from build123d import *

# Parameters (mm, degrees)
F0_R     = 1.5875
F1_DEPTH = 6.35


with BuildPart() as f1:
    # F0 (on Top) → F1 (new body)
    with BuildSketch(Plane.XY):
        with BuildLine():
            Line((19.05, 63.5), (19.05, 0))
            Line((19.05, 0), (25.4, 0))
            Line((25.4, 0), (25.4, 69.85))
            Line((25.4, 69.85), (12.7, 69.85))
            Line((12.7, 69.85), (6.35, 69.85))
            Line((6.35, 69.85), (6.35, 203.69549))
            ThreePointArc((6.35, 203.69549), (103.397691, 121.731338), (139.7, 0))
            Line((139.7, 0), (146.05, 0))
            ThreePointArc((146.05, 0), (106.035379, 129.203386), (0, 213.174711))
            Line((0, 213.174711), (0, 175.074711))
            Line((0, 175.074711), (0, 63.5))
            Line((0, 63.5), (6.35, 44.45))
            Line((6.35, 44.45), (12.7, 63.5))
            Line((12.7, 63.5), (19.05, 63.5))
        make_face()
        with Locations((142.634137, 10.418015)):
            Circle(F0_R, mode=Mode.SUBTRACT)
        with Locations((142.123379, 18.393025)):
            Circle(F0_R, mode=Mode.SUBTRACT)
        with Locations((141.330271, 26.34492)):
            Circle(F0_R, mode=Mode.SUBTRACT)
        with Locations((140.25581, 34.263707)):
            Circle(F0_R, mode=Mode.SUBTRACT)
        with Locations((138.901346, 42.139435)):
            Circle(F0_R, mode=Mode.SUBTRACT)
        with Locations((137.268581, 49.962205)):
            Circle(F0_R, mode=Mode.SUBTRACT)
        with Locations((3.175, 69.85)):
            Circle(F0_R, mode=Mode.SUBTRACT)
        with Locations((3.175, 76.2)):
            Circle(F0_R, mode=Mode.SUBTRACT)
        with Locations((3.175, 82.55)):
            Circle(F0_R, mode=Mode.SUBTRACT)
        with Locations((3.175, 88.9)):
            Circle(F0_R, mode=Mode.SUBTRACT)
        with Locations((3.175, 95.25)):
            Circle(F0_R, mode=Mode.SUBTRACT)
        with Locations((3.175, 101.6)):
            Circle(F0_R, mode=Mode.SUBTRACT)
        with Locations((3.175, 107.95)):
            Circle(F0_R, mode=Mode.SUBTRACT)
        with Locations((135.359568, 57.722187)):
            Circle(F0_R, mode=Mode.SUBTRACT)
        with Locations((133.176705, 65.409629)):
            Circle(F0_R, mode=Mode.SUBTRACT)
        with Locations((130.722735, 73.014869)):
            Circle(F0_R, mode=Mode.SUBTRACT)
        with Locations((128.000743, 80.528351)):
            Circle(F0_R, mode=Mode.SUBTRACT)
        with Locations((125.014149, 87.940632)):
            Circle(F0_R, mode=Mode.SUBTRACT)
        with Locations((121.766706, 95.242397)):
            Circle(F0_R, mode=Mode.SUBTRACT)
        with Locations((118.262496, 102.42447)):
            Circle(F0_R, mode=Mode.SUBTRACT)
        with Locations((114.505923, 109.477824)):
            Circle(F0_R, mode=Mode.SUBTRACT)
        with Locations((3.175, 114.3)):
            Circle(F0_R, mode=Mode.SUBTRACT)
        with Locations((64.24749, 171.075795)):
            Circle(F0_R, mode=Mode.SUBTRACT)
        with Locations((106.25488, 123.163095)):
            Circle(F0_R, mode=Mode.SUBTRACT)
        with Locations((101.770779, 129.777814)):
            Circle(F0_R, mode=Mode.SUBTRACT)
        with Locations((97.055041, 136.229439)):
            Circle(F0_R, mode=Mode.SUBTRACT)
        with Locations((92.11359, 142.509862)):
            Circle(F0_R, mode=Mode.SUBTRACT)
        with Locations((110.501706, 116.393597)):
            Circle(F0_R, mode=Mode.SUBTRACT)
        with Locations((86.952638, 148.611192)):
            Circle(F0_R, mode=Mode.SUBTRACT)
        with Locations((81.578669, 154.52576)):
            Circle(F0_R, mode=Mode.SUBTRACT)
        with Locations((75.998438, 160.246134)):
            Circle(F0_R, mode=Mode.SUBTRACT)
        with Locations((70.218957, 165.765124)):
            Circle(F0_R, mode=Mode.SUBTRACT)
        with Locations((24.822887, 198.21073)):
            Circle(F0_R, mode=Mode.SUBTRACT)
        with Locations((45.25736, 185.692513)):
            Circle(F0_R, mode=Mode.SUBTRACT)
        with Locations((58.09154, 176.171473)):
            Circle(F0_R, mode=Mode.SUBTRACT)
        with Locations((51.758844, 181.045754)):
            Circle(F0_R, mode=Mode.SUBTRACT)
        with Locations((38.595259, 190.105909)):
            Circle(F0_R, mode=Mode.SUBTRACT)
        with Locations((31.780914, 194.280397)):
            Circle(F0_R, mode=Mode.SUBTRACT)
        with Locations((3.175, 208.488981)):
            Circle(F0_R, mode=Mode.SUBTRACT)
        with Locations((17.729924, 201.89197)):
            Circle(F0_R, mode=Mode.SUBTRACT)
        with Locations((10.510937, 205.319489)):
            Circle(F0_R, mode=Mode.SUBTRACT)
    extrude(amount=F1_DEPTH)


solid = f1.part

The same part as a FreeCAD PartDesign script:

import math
import FreeCAD as App
import Part
import Sketcher

V = App.Vector
Q = App.Units.Quantity

doc = App.newDocument("Part")
params = doc.addObject("Spreadsheet::Sheet", "Params")
for row, (alias, value) in enumerate([
    ("sketch1_radius", "8.9999999 in"),
    ("sketch1_radius2", "8.7500001 in"),
    ("sketch1_diameter", "0.125 in"),
    ("sketch1_height", "2.5 in"),
    ("sketch1_height2", "2.75 in"),
    ("pad1_length", "0.25 in"),
], start=1):
    params.set(f"A{row}", alias)
    params.set(f"B{row}", "=" + value)
    params.setAlias(f"B{row}", alias)

body = doc.addObject("PartDesign::Body", "Body")

# Sketch on XY plane
sketch1 = body.newObject("Sketcher::SketchObject", "Sketch")
sketch1.AttachmentSupport = (doc.getObject("XY_Plane"), [""])
sketch1.MapMode = "FlatFace"
sketch1.addGeometry([
    Part.LineSegment(V(19.05, 63.5, 0), V(19.05, 0, 0)),  # 0
    Part.LineSegment(V(19.05, 0, 0), V(25.4, 0, 0)),  # 1
    Part.LineSegment(V(25.4, 0, 0), V(25.4, 69.85, 0)),  # 2
    Part.LineSegment(V(25.4, 69.85, 0), V(6.35, 69.85, 0)),  # 3
    Part.LineSegment(V(6.35, 69.85, 0), V(6.35, 203.69549, 0)),  # 4
    Part.ArcOfCircle(Part.Circle(V(-82.550002, -0.000001, 0), V(0, 0, 1), 222.250002), math.radians(0), math.radians(66.421821)),  # 5
    Part.LineSegment(V(139.7, 0, 0), V(146.05, 0, 0)),  # 6
    Part.ArcOfCircle(Part.Circle(V(-82.549998, 0.000001, 0), V(0, 0, 1), 228.599998), math.radians(0), math.radians(68.831551)),  # 7
    Part.LineSegment(V(0, 213.174711, 0), V(0, 63.5, 0)),  # 8
    Part.LineSegment(V(0, 63.5, 0), V(6.35, 44.45, 0)),  # 9
    Part.LineSegment(V(6.35, 44.45, 0), V(12.7, 63.5, 0)),  # 10
    Part.LineSegment(V(12.7, 63.5, 0), V(19.05, 63.5, 0)),  # 11
    Part.Circle(V(3.175, 69.85, 0), V(0, 0, 1), 1.5875),  # 12
    Part.Circle(V(3.175, 76.2, 0), V(0, 0, 1), 1.5875),  # 13
    Part.Circle(V(3.175, 82.55, 0), V(0, 0, 1), 1.5875),  # 14
    Part.Circle(V(3.175, 88.9, 0), V(0, 0, 1), 1.5875),  # 15
    Part.Circle(V(3.175, 95.25, 0), V(0, 0, 1), 1.5875),  # 16
    Part.Circle(V(3.175, 101.6, 0), V(0, 0, 1), 1.5875),  # 17
    Part.Circle(V(3.175, 107.95, 0), V(0, 0, 1), 1.5875),  # 18
    Part.Circle(V(142.634137, 10.418015, 0), V(0, 0, 1), 1.5875),  # 19
    Part.Circle(V(142.123379, 18.393025, 0), V(0, 0, 1), 1.5875),  # 20
    Part.Circle(V(141.330271, 26.34492, 0), V(0, 0, 1), 1.5875),  # 21
    Part.Circle(V(140.25581, 34.263707, 0), V(0, 0, 1), 1.5875),  # 22
    Part.Circle(V(138.901346, 42.139435, 0), V(0, 0, 1), 1.5875),  # 23
    Part.Circle(V(137.268581, 49.962205, 0), V(0, 0, 1), 1.5875),  # 24
    Part.Circle(V(135.359568, 57.722187, 0), V(0, 0, 1), 1.5875),  # 25
    Part.Circle(V(133.176705, 65.409629, 0), V(0, 0, 1), 1.5875),  # 26
    Part.Circle(V(130.722735, 73.014869, 0), V(0, 0, 1), 1.5875),  # 27
    Part.Circle(V(128.000743, 80.528351, 0), V(0, 0, 1), 1.5875),  # 28
    Part.Circle(V(125.014149, 87.940632, 0), V(0, 0, 1), 1.5875),  # 29
    Part.Circle(V(121.766706, 95.242397, 0), V(0, 0, 1), 1.5875),  # 30
    Part.Circle(V(118.262496, 102.42447, 0), V(0, 0, 1), 1.5875),  # 31
    Part.Circle(V(3.175, 114.3, 0), V(0, 0, 1), 1.5875),  # 32
    Part.Circle(V(3.175, 208.488981, 0), V(0, 0, 1), 1.5875),  # 33
    Part.Circle(V(17.729924, 201.89197, 0), V(0, 0, 1), 1.5875),  # 34
    Part.Circle(V(10.510937, 205.319489, 0), V(0, 0, 1), 1.5875),  # 35
    Part.Circle(V(31.780914, 194.280397, 0), V(0, 0, 1), 1.5875),  # 36
    Part.Circle(V(24.822887, 198.21073, 0), V(0, 0, 1), 1.5875),  # 37
    Part.Circle(V(51.758844, 181.045754, 0), V(0, 0, 1), 1.5875),  # 38
    Part.Circle(V(70.218957, 165.765124, 0), V(0, 0, 1), 1.5875),  # 39
    Part.Circle(V(64.24749, 171.075795, 0), V(0, 0, 1), 1.5875),  # 40
    Part.Circle(V(58.09154, 176.171473, 0), V(0, 0, 1), 1.5875),  # 41
    Part.Circle(V(38.595259, 190.105909, 0), V(0, 0, 1), 1.5875),  # 42
    Part.Circle(V(45.25736, 185.692513, 0), V(0, 0, 1), 1.5875),  # 43
    Part.Circle(V(106.25488, 123.163095, 0), V(0, 0, 1), 1.5875),  # 44
    Part.Circle(V(101.770779, 129.777814, 0), V(0, 0, 1), 1.5875),  # 45
    Part.Circle(V(81.578669, 154.52576, 0), V(0, 0, 1), 1.5875),  # 46
    Part.Circle(V(86.952638, 148.611192, 0), V(0, 0, 1), 1.5875),  # 47
    Part.Circle(V(97.055041, 136.229439, 0), V(0, 0, 1), 1.5875),  # 48
    Part.Circle(V(92.11359, 142.509862, 0), V(0, 0, 1), 1.5875),  # 49
    Part.Circle(V(114.505923, 109.477824, 0), V(0, 0, 1), 1.5875),  # 50
    Part.Circle(V(110.501706, 116.393597, 0), V(0, 0, 1), 1.5875),  # 51
    Part.Circle(V(75.998438, 160.246134, 0), V(0, 0, 1), 1.5875),  # 52
], False)
sketch1.addConstraint([
    Sketcher.Constraint("Coincident", 0, 2, 1, 1),
    Sketcher.Constraint("Coincident", 1, 2, 2, 1),
    Sketcher.Constraint("Coincident", 2, 2, 3, 1),
    Sketcher.Constraint("Coincident", 3, 2, 4, 1),
    Sketcher.Constraint("Coincident", 4, 2, 5, 2),
    Sketcher.Constraint("Coincident", 5, 1, 6, 1),
    Sketcher.Constraint("Coincident", 6, 2, 7, 1),
    Sketcher.Constraint("Coincident", 7, 2, 8, 1),
    Sketcher.Constraint("Coincident", 8, 2, 9, 1),
    Sketcher.Constraint("Coincident", 9, 2, 10, 1),
    Sketcher.Constraint("Coincident", 10, 2, 11, 1),
    Sketcher.Constraint("Coincident", 11, 2, 0, 1),
    Sketcher.Constraint("Vertical", 0),
    Sketcher.Constraint("Horizontal", 1),
    Sketcher.Constraint("Vertical", 2),
    Sketcher.Constraint("Horizontal", 3),
    Sketcher.Constraint("Vertical", 4),
    Sketcher.Constraint("Horizontal", 6),
    Sketcher.Constraint("Vertical", 8),
    Sketcher.Constraint("Horizontal", 11),
    Sketcher.Constraint("Coincident", 7, 3, 5, 3),
    Sketcher.Constraint("Equal", 12, 13),
    Sketcher.Constraint("Equal", 13, 14),
    Sketcher.Constraint("Equal", 14, 15),
    Sketcher.Constraint("Equal", 15, 16),
    Sketcher.Constraint("Equal", 16, 17),
    Sketcher.Constraint("Equal", 17, 18),
    Sketcher.Constraint("Equal", 18, 19),
    Sketcher.Constraint("Equal", 19, 20),
    Sketcher.Constraint("Equal", 20, 21),
    Sketcher.Constraint("Equal", 21, 22),
    Sketcher.Constraint("Equal", 22, 23),
    Sketcher.Constraint("Equal", 23, 24),
    Sketcher.Constraint("Equal", 24, 25),
    Sketcher.Constraint("Equal", 25, 26),
    Sketcher.Constraint("Equal", 26, 27),
    Sketcher.Constraint("Equal", 27, 28),
    Sketcher.Constraint("Equal", 28, 29),
    Sketcher.Constraint("Equal", 29, 30),
    Sketcher.Constraint("Equal", 30, 31),
    Sketcher.Constraint("Equal", 31, 32),
    Sketcher.Constraint("Equal", 32, 33),
    Sketcher.Constraint("Equal", 33, 34),
    Sketcher.Constraint("Equal", 34, 35),
    Sketcher.Constraint("Equal", 35, 36),
    Sketcher.Constraint("Equal", 36, 37),
    Sketcher.Constraint("Equal", 37, 38),
    Sketcher.Constraint("Equal", 38, 39),
    Sketcher.Constraint("Equal", 39, 40),
    Sketcher.Constraint("Equal", 40, 41),
    Sketcher.Constraint("Equal", 41, 42),
    Sketcher.Constraint("Equal", 42, 43),
    Sketcher.Constraint("Equal", 43, 44),
    Sketcher.Constraint("Equal", 44, 45),
    Sketcher.Constraint("Equal", 45, 46),
    Sketcher.Constraint("Equal", 46, 47),
    Sketcher.Constraint("Equal", 47, 48),
    Sketcher.Constraint("Equal", 48, 49),
    Sketcher.Constraint("Equal", 49, 50),
    Sketcher.Constraint("Equal", 50, 51),
    Sketcher.Constraint("Equal", 51, 52),
    Sketcher.Constraint("PointOnObject", 5, 3, -1),
    Sketcher.Constraint("PointOnObject", 0, 2, -1),
    Sketcher.Constraint("PointOnObject", 5, 1, -1),
    Sketcher.Constraint("PointOnObject", 7, 2, -2),
    Sketcher.Constraint("Horizontal", 12, 3, 2, 2),
    Sketcher.Constraint("Horizontal", 8, 2, 10, 2),
    Sketcher.Constraint("Vertical", 12, 3, 13, 3),
    Sketcher.Constraint("Vertical", 13, 3, 14, 3),
    Sketcher.Constraint("Vertical", 14, 3, 15, 3),
    Sketcher.Constraint("Vertical", 15, 3, 16, 3),
    Sketcher.Constraint("Vertical", 16, 3, 17, 3),
    Sketcher.Constraint("Vertical", 17, 3, 18, 3),
    Sketcher.Constraint("Vertical", 18, 3, 32, 3),
    Sketcher.Constraint("Vertical", 32, 3, 33, 3),
    Sketcher.Constraint("Vertical", 4, 2, 9, 2),
    Sketcher.Constraint("Equal", 1, 6),
    Sketcher.Constraint("Equal", 6, 11),
    Sketcher.Constraint("Equal", 9, 10),
    Sketcher.Constraint("Radius", 7, Q("8.9999999 in")),
    Sketcher.Constraint("Radius", 5, Q("8.7500001 in")),
    Sketcher.Constraint("Diameter", 12, Q("0.125 in")),
    Sketcher.Constraint("DistanceY", 0, 2, 0, 1, Q("2.5 in")),
    Sketcher.Constraint("DistanceY", -1, 1, 13, 3, Q("3 in")),
    Sketcher.Constraint("DistanceY", -1, 1, 17, 3, Q("4 in")),
    Sketcher.Constraint("DistanceX", -1, 1, 1, 2, Q("1 in")),
    Sketcher.Constraint("DistanceY", 12, 3, 16, 3, Q("1 in")),
    Sketcher.Constraint("DistanceY", 14, 3, 18, 3, Q("1 in")),
    Sketcher.Constraint("DistanceY", 15, 3, 32, 3, Q("1 in")),
    Sketcher.Constraint("DistanceY", 8, 2, 15, 3, Q("1 in")),
    Sketcher.Constraint("DistanceY", 9, 2, 3, 2, Q("1 in")),
    Sketcher.Constraint("DistanceY", 2, 1, 2, 2, Q("2.75 in")),
    Sketcher.Constraint("DistanceX", -1, 1, 5, 1, Q("5.5 in")),
    Sketcher.Constraint("DistanceY", 12, 3, 14, 3, Q("0.5 in")),
    Sketcher.Constraint("DistanceX", -1, 1, 12, 3, Q("0.125 in")),
    Sketcher.Constraint("DistanceX", 29, 3, 25, 3, Q("0.4073 in")),
    Sketcher.Constraint("DistanceY", 41, 3, 42, 3, Q("0.5485998 in")),
    Sketcher.Constraint("DistanceY", 22, 3, 24, 3, Q("15.698498 mm")),
    Sketcher.Constraint("DistanceX", 30, 3, 26, 3, Q("11.409999 mm")),
    Sketcher.Constraint("DistanceY", 27, 3, 31, 3, Q("29.409601 mm")),
    Sketcher.Constraint("DistanceY", 40, 3, 36, 3, Q("23.204602 mm")),
    Sketcher.Constraint("DistanceX", 42, 3, 43, 3, Q("6.662101 mm")),
    Sketcher.Constraint("DistanceY", 30, 3, 44, 3, Q("27.920698 mm")),
    Sketcher.Constraint("DistanceX", 45, 3, 44, 3, Q("4.484101 mm")),
    Sketcher.Constraint("DistanceX", 52, 3, 47, 3, Q("10.9542 mm")),
    Sketcher.Constraint("DistanceY", 4, 2, 35, 3, Q("1.623999 mm")),
    Sketcher.Constraint("DistanceX", -1, 1, 20, 3, Q("142.123379 mm")),
    Sketcher.Constraint("DistanceX", -1, 1, 21, 3, Q("141.330271 mm")),
    Sketcher.Constraint("DistanceY", -1, 1, 21, 3, Q("26.34492 mm")),
    Sketcher.Constraint("DistanceX", -1, 1, 22, 3, Q("140.25581 mm")),
    Sketcher.Constraint("DistanceX", -1, 1, 24, 3, Q("137.268581 mm")),
    Sketcher.Constraint("DistanceX", -1, 1, 25, 3, Q("135.359568 mm")),
    Sketcher.Constraint("DistanceY", -1, 1, 26, 3, Q("65.409629 mm")),
    Sketcher.Constraint("DistanceY", -1, 1, 27, 3, Q("73.014869 mm")),
    Sketcher.Constraint("DistanceY", -1, 1, 28, 3, Q("80.528351 mm")),
    Sketcher.Constraint("DistanceY", -1, 1, 29, 3, Q("87.940632 mm")),
    Sketcher.Constraint("DistanceY", -1, 1, 33, 3, Q("208.488981 mm")),
    Sketcher.Constraint("DistanceY", -1, 1, 34, 3, Q("201.89197 mm")),
    Sketcher.Constraint("DistanceY", -1, 1, 37, 3, Q("198.21073 mm")),
    Sketcher.Constraint("DistanceX", -1, 1, 40, 3, Q("64.24749 mm")),
    Sketcher.Constraint("DistanceX", -1, 1, 41, 3, Q("58.09154 mm")),
    Sketcher.Constraint("DistanceX", -1, 1, 42, 3, Q("38.595259 mm")),
    Sketcher.Constraint("DistanceY", -1, 1, 42, 3, Q("190.105909 mm")),
    Sketcher.Constraint("DistanceX", -1, 1, 44, 3, Q("106.25488 mm")),
    Sketcher.Constraint("DistanceX", -1, 1, 46, 3, Q("81.578669 mm")),
    Sketcher.Constraint("DistanceY", -1, 1, 46, 3, Q("154.52576 mm")),
    Sketcher.Constraint("DistanceY", -1, 1, 47, 3, Q("148.611192 mm")),
    Sketcher.Constraint("DistanceX", -1, 1, 48, 3, Q("97.055041 mm")),
    Sketcher.Constraint("DistanceY", -1, 1, 48, 3, Q("136.229439 mm")),
    Sketcher.Constraint("DistanceX", -1, 1, 49, 3, Q("92.11359 mm")),
    Sketcher.Constraint("DistanceY", -1, 1, 49, 3, Q("142.509862 mm")),
    Sketcher.Constraint("DistanceX", 20, 3, 19, 3, Q("0.510758 mm")),
    Sketcher.Constraint("DistanceY", 19, 3, 20, 3, Q("7.97501 mm")),
    Sketcher.Constraint("DistanceY", 20, 3, 22, 3, Q("15.870682 mm")),
    Sketcher.Constraint("DistanceY", 22, 3, 23, 3, Q("7.875728 mm")),
    Sketcher.Constraint("DistanceX", 23, 3, 19, 3, Q("3.732791 mm")),
    Sketcher.Constraint("DistanceY", 23, 3, 25, 3, Q("15.582752 mm")),
    Sketcher.Constraint("DistanceY", 25, 3, 26, 3, Q("7.687442 mm")),
    Sketcher.Constraint("DistanceX", 26, 3, 23, 3, Q("5.724641 mm")),
    Sketcher.Constraint("DistanceX", 27, 3, 26, 3, Q("2.45397 mm")),
    Sketcher.Constraint("DistanceX", 28, 3, 26, 3, Q("5.175962 mm")),
    Sketcher.Constraint("DistanceY", 26, 3, 30, 3, Q("29.832768 mm")),
    Sketcher.Constraint("DistanceX", 31, 3, 30, 3, Q("3.50421 mm")),
    Sketcher.Constraint("DistanceX", 34, 3, 36, 3, Q("14.05099 mm")),
    Sketcher.Constraint("DistanceX", 35, 3, 37, 3, Q("14.31195 mm")),
    Sketcher.Constraint("DistanceX", 36, 3, 38, 3, Q("19.97793 mm")),
    Sketcher.Constraint("DistanceY", 39, 3, 38, 3, Q("15.28063 mm")),
    Sketcher.Constraint("DistanceX", 37, 3, 39, 3, Q("45.39607 mm")),
    Sketcher.Constraint("DistanceY", 39, 3, 40, 3, Q("5.310671 mm")),
    Sketcher.Constraint("DistanceY", 41, 3, 38, 3, Q("4.874281 mm")),
    Sketcher.Constraint("DistanceX", 37, 3, 42, 3, Q("13.772372 mm")),
    Sketcher.Constraint("DistanceY", 38, 3, 43, 3, Q("4.646759 mm")),
    Sketcher.Constraint("DistanceY", 44, 3, 45, 3, Q("6.614719 mm")),
    Sketcher.Constraint("DistanceX", 46, 3, 47, 3, Q("5.373969 mm")),
    Sketcher.Constraint("DistanceY", 50, 3, 44, 3, Q("13.685271 mm")),
    Sketcher.Constraint("DistanceX", 51, 3, 31, 3, Q("7.76079 mm")),
    Sketcher.Constraint("DistanceY", 52, 3, 39, 3, Q("5.51899 mm")),
    Sketcher.Constraint("DistanceX", -1, 1, 34, 3, Q("17.729924 mm")),
    Sketcher.Constraint("DistanceX", -1, 1, 50, 3, Q("114.505923 mm")),
    Sketcher.Constraint("DistanceY", -1, 1, 51, 3, Q("116.393597 mm")),
])
sketch1.setExpression("Constraints[79]", "Params.sketch1_radius")
sketch1.setExpression("Constraints[80]", "Params.sketch1_radius2")
sketch1.setExpression("Constraints[81]", "Params.sketch1_diameter")
sketch1.setExpression("Constraints[82]", "Params.sketch1_height")
sketch1.setExpression("Constraints[91]", "Params.sketch1_height2")
pad1 = body.newObject("PartDesign::Pad", "Pad")
pad1.Profile = sketch1
pad1.setExpression("Length", "Params.pad1_length")

doc.recompute()
